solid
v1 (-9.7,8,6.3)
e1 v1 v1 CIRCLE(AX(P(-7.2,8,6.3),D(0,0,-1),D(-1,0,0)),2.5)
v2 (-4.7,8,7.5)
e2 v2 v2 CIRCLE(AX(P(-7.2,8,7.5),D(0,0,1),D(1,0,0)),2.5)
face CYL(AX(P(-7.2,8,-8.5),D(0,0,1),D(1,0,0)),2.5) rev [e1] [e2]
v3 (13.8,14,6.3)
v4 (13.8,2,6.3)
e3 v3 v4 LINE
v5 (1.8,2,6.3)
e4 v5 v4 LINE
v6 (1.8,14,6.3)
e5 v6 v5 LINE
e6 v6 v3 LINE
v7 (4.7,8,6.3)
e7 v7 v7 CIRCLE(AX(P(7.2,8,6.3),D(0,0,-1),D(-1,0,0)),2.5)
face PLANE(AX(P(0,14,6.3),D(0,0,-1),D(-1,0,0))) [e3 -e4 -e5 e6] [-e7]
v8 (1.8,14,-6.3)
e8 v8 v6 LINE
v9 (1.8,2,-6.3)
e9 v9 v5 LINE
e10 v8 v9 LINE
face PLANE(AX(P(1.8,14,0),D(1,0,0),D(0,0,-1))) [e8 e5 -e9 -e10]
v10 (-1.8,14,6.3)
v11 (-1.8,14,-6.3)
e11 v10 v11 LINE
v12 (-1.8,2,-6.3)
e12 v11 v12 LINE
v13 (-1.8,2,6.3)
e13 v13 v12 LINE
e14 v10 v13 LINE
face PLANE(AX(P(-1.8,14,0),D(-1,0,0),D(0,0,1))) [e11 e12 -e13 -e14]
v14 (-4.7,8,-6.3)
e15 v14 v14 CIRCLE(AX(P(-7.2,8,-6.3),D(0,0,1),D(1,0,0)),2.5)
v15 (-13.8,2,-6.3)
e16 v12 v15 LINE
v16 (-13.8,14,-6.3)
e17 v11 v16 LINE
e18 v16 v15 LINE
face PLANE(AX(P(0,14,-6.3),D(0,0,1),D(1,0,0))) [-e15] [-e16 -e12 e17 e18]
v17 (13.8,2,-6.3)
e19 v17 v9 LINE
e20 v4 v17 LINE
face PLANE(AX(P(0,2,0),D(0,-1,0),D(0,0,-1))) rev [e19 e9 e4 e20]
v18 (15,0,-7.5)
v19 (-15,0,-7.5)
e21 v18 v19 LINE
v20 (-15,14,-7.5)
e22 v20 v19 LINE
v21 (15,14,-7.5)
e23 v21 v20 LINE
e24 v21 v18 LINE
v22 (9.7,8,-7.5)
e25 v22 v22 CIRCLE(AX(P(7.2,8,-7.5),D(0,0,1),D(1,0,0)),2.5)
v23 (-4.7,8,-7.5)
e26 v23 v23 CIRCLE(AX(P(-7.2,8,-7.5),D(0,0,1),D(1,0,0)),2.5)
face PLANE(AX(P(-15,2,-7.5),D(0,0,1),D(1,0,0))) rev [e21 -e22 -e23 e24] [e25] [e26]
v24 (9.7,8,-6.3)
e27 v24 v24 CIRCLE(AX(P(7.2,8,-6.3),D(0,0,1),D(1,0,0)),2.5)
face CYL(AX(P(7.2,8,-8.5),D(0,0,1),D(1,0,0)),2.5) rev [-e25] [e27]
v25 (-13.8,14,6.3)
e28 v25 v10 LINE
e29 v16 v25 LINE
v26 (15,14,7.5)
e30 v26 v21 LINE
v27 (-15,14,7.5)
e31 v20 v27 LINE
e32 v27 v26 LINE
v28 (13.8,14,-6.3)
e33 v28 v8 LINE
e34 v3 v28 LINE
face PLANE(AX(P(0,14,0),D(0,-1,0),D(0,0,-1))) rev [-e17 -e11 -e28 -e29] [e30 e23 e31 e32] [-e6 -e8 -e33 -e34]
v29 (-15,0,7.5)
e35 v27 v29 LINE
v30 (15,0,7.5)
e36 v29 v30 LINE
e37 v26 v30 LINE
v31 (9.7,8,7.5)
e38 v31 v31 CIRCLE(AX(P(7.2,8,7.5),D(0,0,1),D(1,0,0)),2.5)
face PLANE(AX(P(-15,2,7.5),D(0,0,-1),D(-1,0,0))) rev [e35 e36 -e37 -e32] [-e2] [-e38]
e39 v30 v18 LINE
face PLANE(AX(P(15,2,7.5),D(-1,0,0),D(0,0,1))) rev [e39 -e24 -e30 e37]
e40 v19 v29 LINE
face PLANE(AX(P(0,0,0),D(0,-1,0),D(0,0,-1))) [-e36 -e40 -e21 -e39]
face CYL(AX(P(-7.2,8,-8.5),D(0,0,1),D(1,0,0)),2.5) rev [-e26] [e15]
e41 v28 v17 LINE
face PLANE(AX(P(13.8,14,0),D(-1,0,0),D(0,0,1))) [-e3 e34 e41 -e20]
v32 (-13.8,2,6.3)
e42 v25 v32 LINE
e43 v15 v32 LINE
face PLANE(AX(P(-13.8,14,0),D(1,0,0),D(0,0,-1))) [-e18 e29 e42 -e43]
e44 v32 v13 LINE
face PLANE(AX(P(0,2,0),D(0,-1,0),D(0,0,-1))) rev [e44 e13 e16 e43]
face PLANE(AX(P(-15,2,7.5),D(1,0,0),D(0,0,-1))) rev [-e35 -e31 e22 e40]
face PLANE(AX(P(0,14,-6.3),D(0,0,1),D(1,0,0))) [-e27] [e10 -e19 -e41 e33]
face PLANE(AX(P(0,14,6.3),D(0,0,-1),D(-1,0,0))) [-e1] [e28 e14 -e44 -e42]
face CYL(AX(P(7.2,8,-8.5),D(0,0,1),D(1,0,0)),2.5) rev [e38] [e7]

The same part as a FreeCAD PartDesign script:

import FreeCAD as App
import Part
import Sketcher
Q = App.Units.Quantity

doc = App.newDocument("Part")
body = doc.addObject("PartDesign::Body", "Body")

sketch1 = body.newObject("Sketcher::SketchObject", "Sketch")
sketch1.AttachmentSupport = (doc.getObject("XZ_Plane"), [""])
sketch1.MapMode = "FlatFace"
sketch1.addGeometry(Part.LineSegment(App.Vector(-15, -8, 0), App.Vector(-15, 8, 0)), False)
sketch1.addGeometry(Part.LineSegment(App.Vector(-15, 8, 0), App.Vector(15, 8, 0)), False)
sketch1.addGeometry(Part.LineSegment(App.Vector(15, 8, 0), App.Vector(15, -8, 0)), False)
sketch1.addGeometry(Part.LineSegment(App.Vector(15, -8, 0), App.Vector(-15, -8, 0)), False)
sketch1.addConstraint(Sketcher.Constraint("Coincident", 0, 2, 1, 1))
sketch1.addConstraint(Sketcher.Constraint("Coincident", 1, 2, 2, 1))
sketch1.addConstraint(Sketcher.Constraint("Coincident", 2, 2, 3, 1))
sketch1.addConstraint(Sketcher.Constraint("Coincident", 3, 2, 0, 1))
sketch1.addConstraint(Sketcher.Constraint("Vertical", 0))
sketch1.addConstraint(Sketcher.Constraint("Horizontal", 1))
sketch1.addConstraint(Sketcher.Constraint("Vertical", 2))
sketch1.addConstraint(Sketcher.Constraint("Horizontal", 3))
sketch1.addConstraint(Sketcher.Constraint("Symmetric", 0, 2, 2, 2, -1, 1))
sketch1.addConstraint(Sketcher.Constraint("DistanceX", 1, 1, 1, 2, Q("30 mm")))
sketch1.addConstraint(Sketcher.Constraint("DistanceY", 0, 1, 0, 2, Q("15 mm")))
pad1 = body.newObject("PartDesign::Pad", "Pad")
pad1.Profile = sketch1
pad1.Length = 2
pad1.Reversed = True

sketch2 = body.newObject("Sketcher::SketchObject", "Sketch001")
sketch2.AttachmentSupport = (doc.getObject("XZ_Plane"), [""])
sketch2.MapMode = "FlatFace"
sketch2.AttachmentOffset = App.Placement(App.Vector(0, 0, -2), App.Rotation())
sketch2.addGeometry(Part.LineSegment(App.Vector(-0.6, -7.5, 0), App.Vector(-0.6, 7.5, 0)), False)
sketch2.addGeometry(Part.LineSegment(App.Vector(-0.6, 7.5, 0), App.Vector(0.6, 7.5, 0)), False)
sketch2.addGeometry(Part.LineSegment(App.Vector(0.6, 7.5, 0), App.Vector(0.6, -7.5, 0)), False)
sketch2.addGeometry(Part.LineSegment(App.Vector(0.6, -7.5, 0), App.Vector(-0.6, -7.5, 0)), False)
sketch2.addConstraint(Sketcher.Constraint("Coincident", 0, 2, 1, 1))
sketch2.addConstraint(Sketcher.Constraint("Coincident", 1, 2, 2, 1))
sketch2.addConstraint(Sketcher.Constraint("Coincident", 2, 2, 3, 1))
sketch2.addConstraint(Sketcher.Constraint("Coincident", 3, 2, 0, 1))
sketch2.addConstraint(Sketcher.Constraint("Vertical", 0))
sketch2.addConstraint(Sketcher.Constraint("Horizontal", 1))
sketch2.addConstraint(Sketcher.Constraint("Vertical", 2))
sketch2.addConstraint(Sketcher.Constraint("Horizontal", 3))
sketch2.addConstraint(Sketcher.Constraint("Symmetric", 0, 2, 2, 2, -1, 1))
sketch2.addConstraint(Sketcher.Constraint("DistanceY", 0, 1, 0, 2, Q("15 mm")))
sketch2.addConstraint(Sketcher.Constraint("DistanceX", 1, 1, 1, 2, Q("1.2 mm")))
pad2 = body.newObject("PartDesign::Pad", "Pad001")
pad2.Profile = sketch2
pad2.Length = 12
pad2.Reversed = True

sketch3 = body.newObject("Sketcher::SketchObject", "Sketch002")
sketch3.AttachmentSupport = (doc.getObject("XZ_Plane"), [""])
sketch3.MapMode = "FlatFace"
sketch3.AttachmentOffset = App.Placement(App.Vector(0, 0, -2), App.Rotation())
sketch3.addGeometry(Part.LineSegment(App.Vector(1, -8, 0), App.Vector(1, 8, 0)), False)
sketch3.addGeometry(Part.LineSegment(App.Vector(1, 8, 0), App.Vector(15, 8, 0)), False)
sketch3.addGeometry(Part.LineSegment(App.Vector(15, 8, 0), App.Vector(15, -8, 0)), False)
sketch3.addGeometry(Part.LineSegment(App.Vector(15, -8, 0), App.Vector(1, -8, 0)), False)
sketch3.addGeometry(Part.LineSegment(App.Vector(14, 6, 0), App.Vector(2, 6, 0)), False)
sketch3.addGeometry(Part.LineSegment(App.Vector(2, 6, 0), App.Vector(2, -6, 0)), False)
sketch3.addGeometry(Part.LineSegment(App.Vector(2, -6, 0), App.Vector(14, -6, 0)), False)
sketch3.addGeometry(Part.LineSegment(App.Vector(14, -6, 0), App.Vector(14, 6, 0)), False)
sketch3.addConstraint(Sketcher.Constraint("Coincident", 0, 2, 1, 1))
sketch3.addConstraint(Sketcher.Constraint("Coincident", 1, 2, 2, 1))
sketch3.addConstraint(Sketcher.Constraint("Coincident", 2, 2, 3, 1))
sketch3.addConstraint(Sketcher.Constraint("Coincident", 3, 2, 0, 1))
sketch3.addConstraint(Sketcher.Constraint("Coincident", 4, 2, 5, 1))
sketch3.addConstraint(Sketcher.Constraint("Coincident", 5, 2, 6, 1))
sketch3.addConstraint(Sketcher.Constraint("Coincident", 6, 2, 7, 1))
sketch3.addConstraint(Sketcher.Constraint("Coincident", 7, 2, 4, 1))
sketch3.addConstraint(Sketcher.Constraint("Vertical", 0))
sketch3.addConstraint(Sketcher.Constraint("Horizontal", 1))
sketch3.addConstraint(Sketcher.Constraint("Vertical", 2))
sketch3.addConstraint(Sketcher.Constraint("Horizontal", 3))
sketch3.addConstraint(Sketcher.Constraint("Horizontal", 4))
sketch3.addConstraint(Sketcher.Constraint("Vertical", 5))
sketch3.addConstraint(Sketcher.Constraint("Horizontal", 6))
sketch3.addConstraint(Sketcher.Constraint("Vertical", 7))
sketch3.addConstraint(Sketcher.Constraint("DistanceX", 4, 2, 4, 1, Q("12 mm")))
sketch3.addConstraint(Sketcher.Constraint("DistanceY", 0, 1, 0, 2, Q("15 mm")))
sketch3.addConstraint(Sketcher.Constraint("DistanceX", 1, 1, 1, 2, Q("14.4 mm")))
sketch3.addConstraint(Sketcher.Constraint("DistanceY", 5, 2, 5, 1, Q("12.6 mm")))
sketch3.addConstraint(Sketcher.Constraint("DistanceX", -1, 1, 1, 2, Q("15 mm")))
sketch3.addConstraint(Sketcher.Constraint("DistanceY", -1, 1, 0, 2, Q("7.5 mm")))
sketch3.addConstraint(Sketcher.Constraint("DistanceX", -1, 1, 4, 2, Q("1.8 mm")))
sketch3.addConstraint(Sketcher.Constraint("DistanceY", -1, 1, 4, 2, Q("6.3 mm")))
pad3 = body.newObject("PartDesign::Pad", "Pad002")
pad3.Profile = sketch3
pad3.Length = 12
pad3.Reversed = True

sketch4 = body.newObject("Sketcher::SketchObject", "Sketch003")
sketch4.AttachmentSupport = (doc.getObject("XY_Plane"), [""])
sketch4.MapMode = "FlatFace"
sketch4.AttachmentOffset = App.Placement(App.Vector(0, 0, 7.5), App.Rotation())
sketch4.addGeometry(Part.Circle(App.Vector(7.2, 8, 0), App.Vector(0, 0, 1), 2.5), False)
sketch4.addConstraint(Sketcher.Constraint("Diameter", 0, Q("5 mm")))
sketch4.addConstraint(Sketcher.Constraint("DistanceY", -1, 1, 0, 3, Q("8 mm")))
sketch4.addConstraint(Sketcher.Constraint("DistanceX", -1, 1, 0, 3, Q("7.2 mm")))
pocket1 = body.newObject("PartDesign::Pocket", "Pocket")
pocket1.Profile = sketch4
pocket1.Length = 16

sketch5 = body.newObject("Sketcher::SketchObject", "Sketch004")
sketch5.AttachmentSupport = (doc.getObject("XZ_Plane"), [""])
sketch5.MapMode = "FlatFace"
sketch5.AttachmentOffset = App.Placement(App.Vector(0, 0, -2), App.Rotation())
sketch5.addGeometry(Part.LineSegment(App.Vector(-15, -8, 0), App.Vector(-15, 8, 0)), False)
sketch5.addGeometry(Part.LineSegment(App.Vector(-15, 8, 0), App.Vector(-1, 8, 0)), False)
sketch5.addGeometry(Part.LineSegment(App.Vector(-1, 8, 0), App.Vector(-1, -8, 0)), False)
sketch5.addGeometry(Part.LineSegment(App.Vector(-1, -8, 0), App.Vector(-15, -8, 0)), False)
sketch5.addGeometry(Part.LineSegment(App.Vector(-2, 6, 0), App.Vector(-14, 6, 0)), False)
sketch5.addGeometry(Part.LineSegment(App.Vector(-14, 6, 0), App.Vector(-14, -6, 0)), False)
sketch5.addGeometry(Part.LineSegment(App.Vector(-14, -6, 0), App.Vector(-2, -6, 0)), False)
sketch5.addGeometry(Part.LineSegment(App.Vector(-2, -6, 0), App.Vector(-2, 6, 0)), False)
sketch5.addConstraint(Sketcher.Constraint("Coincident", 0, 2, 1, 1))
sketch5.addConstraint(Sketcher.Constraint("Coincident", 1, 2, 2, 1))
sketch5.addConstraint(Sketcher.Constraint("Coincident", 2, 2, 3, 1))
sketch5.addConstraint(Sketcher.Constraint("Coincident", 3, 2, 0, 1))
sketch5.addConstraint(Sketcher.Constraint("Coincident", 4, 2, 5, 1))
sketch5.addConstraint(Sketcher.Constraint("Coincident", 5, 2, 6, 1))
sketch5.addConstraint(Sketcher.Constraint("Coincident", 6, 2, 7, 1))
sketch5.addConstraint(Sketcher.Constraint("Coincident", 7, 2, 4, 1))
sketch5.addConstraint(Sketcher.Constraint("Vertical", 0))
sketch5.addConstraint(Sketcher.Constraint("Horizontal", 1))
sketch5.addConstraint(Sketcher.Constraint("Vertical", 2))
sketch5.addConstraint(Sketcher.Constraint("Horizontal", 3))
sketch5.addConstraint(Sketcher.Constraint("Horizontal", 4))
sketch5.addConstraint(Sketcher.Constraint("Vertical", 5))
sketch5.addConstraint(Sketcher.Constraint("Horizontal", 6))
sketch5.addConstraint(Sketcher.Constraint("Vertical", 7))
sketch5.addConstraint(Sketcher.Constraint("DistanceX", 4, 2, 4, 1, Q("12 mm")))
sketch5.addConstraint(Sketcher.Constraint("DistanceY", 0, 1, 0, 2, Q("15 mm")))
sketch5.addConstraint(Sketcher.Constraint("DistanceX", 1, 1, 1, 2, Q("14.4 mm")))
sketch5.addConstraint(Sketcher.Constraint("DistanceY", 5, 2, 5, 1, Q("12.6 mm")))
sketch5.addConstraint(Sketcher.Constraint("DistanceX", 0, 2, -1, 1, Q("15 mm")))
sketch5.addConstraint(Sketcher.Constraint("DistanceY", -1, 1, 0, 2, Q("7.5 mm")))
sketch5.addConstraint(Sketcher.Constraint("DistanceX", 4, 2, -1, 1, Q("13.8 mm")))
sketch5.addConstraint(Sketcher.Constraint("DistanceY", -1, 1, 4, 2, Q("6.3 mm")))
pad4 = body.newObject("PartDesign::Pad", "Pad003")
pad4.Profile = sketch5
pad4.Length = 12
pad4.Reversed = True

sketch6 = body.newObject("Sketcher::SketchObject", "Sketch005")
sketch6.AttachmentSupport = (doc.getObject("XY_Plane"), [""])
sketch6.MapMode = "FlatFace"
sketch6.AttachmentOffset = App.Placement(App.Vector(0, 0, 7.5), App.Rotation())
sketch6.addGeometry(Part.Circle(App.Vector(-7.2, 8, 0), App.Vector(0, 0, 1), 2.5), False)
sketch6.addConstraint(Sketcher.Constraint("Diameter", 0, Q("5 mm")))
sketch6.addConstraint(Sketcher.Constraint("DistanceY", -1, 1, 0, 3, Q("8 mm")))
sketch6.addConstraint(Sketcher.Constraint("DistanceX", 0, 3, -1, 1, Q("7.2 mm")))
pocket2 = body.newObject("PartDesign::Pocket", "Pocket001")
pocket2.Profile = sketch6
pocket2.Length = 16

doc.recompute()
